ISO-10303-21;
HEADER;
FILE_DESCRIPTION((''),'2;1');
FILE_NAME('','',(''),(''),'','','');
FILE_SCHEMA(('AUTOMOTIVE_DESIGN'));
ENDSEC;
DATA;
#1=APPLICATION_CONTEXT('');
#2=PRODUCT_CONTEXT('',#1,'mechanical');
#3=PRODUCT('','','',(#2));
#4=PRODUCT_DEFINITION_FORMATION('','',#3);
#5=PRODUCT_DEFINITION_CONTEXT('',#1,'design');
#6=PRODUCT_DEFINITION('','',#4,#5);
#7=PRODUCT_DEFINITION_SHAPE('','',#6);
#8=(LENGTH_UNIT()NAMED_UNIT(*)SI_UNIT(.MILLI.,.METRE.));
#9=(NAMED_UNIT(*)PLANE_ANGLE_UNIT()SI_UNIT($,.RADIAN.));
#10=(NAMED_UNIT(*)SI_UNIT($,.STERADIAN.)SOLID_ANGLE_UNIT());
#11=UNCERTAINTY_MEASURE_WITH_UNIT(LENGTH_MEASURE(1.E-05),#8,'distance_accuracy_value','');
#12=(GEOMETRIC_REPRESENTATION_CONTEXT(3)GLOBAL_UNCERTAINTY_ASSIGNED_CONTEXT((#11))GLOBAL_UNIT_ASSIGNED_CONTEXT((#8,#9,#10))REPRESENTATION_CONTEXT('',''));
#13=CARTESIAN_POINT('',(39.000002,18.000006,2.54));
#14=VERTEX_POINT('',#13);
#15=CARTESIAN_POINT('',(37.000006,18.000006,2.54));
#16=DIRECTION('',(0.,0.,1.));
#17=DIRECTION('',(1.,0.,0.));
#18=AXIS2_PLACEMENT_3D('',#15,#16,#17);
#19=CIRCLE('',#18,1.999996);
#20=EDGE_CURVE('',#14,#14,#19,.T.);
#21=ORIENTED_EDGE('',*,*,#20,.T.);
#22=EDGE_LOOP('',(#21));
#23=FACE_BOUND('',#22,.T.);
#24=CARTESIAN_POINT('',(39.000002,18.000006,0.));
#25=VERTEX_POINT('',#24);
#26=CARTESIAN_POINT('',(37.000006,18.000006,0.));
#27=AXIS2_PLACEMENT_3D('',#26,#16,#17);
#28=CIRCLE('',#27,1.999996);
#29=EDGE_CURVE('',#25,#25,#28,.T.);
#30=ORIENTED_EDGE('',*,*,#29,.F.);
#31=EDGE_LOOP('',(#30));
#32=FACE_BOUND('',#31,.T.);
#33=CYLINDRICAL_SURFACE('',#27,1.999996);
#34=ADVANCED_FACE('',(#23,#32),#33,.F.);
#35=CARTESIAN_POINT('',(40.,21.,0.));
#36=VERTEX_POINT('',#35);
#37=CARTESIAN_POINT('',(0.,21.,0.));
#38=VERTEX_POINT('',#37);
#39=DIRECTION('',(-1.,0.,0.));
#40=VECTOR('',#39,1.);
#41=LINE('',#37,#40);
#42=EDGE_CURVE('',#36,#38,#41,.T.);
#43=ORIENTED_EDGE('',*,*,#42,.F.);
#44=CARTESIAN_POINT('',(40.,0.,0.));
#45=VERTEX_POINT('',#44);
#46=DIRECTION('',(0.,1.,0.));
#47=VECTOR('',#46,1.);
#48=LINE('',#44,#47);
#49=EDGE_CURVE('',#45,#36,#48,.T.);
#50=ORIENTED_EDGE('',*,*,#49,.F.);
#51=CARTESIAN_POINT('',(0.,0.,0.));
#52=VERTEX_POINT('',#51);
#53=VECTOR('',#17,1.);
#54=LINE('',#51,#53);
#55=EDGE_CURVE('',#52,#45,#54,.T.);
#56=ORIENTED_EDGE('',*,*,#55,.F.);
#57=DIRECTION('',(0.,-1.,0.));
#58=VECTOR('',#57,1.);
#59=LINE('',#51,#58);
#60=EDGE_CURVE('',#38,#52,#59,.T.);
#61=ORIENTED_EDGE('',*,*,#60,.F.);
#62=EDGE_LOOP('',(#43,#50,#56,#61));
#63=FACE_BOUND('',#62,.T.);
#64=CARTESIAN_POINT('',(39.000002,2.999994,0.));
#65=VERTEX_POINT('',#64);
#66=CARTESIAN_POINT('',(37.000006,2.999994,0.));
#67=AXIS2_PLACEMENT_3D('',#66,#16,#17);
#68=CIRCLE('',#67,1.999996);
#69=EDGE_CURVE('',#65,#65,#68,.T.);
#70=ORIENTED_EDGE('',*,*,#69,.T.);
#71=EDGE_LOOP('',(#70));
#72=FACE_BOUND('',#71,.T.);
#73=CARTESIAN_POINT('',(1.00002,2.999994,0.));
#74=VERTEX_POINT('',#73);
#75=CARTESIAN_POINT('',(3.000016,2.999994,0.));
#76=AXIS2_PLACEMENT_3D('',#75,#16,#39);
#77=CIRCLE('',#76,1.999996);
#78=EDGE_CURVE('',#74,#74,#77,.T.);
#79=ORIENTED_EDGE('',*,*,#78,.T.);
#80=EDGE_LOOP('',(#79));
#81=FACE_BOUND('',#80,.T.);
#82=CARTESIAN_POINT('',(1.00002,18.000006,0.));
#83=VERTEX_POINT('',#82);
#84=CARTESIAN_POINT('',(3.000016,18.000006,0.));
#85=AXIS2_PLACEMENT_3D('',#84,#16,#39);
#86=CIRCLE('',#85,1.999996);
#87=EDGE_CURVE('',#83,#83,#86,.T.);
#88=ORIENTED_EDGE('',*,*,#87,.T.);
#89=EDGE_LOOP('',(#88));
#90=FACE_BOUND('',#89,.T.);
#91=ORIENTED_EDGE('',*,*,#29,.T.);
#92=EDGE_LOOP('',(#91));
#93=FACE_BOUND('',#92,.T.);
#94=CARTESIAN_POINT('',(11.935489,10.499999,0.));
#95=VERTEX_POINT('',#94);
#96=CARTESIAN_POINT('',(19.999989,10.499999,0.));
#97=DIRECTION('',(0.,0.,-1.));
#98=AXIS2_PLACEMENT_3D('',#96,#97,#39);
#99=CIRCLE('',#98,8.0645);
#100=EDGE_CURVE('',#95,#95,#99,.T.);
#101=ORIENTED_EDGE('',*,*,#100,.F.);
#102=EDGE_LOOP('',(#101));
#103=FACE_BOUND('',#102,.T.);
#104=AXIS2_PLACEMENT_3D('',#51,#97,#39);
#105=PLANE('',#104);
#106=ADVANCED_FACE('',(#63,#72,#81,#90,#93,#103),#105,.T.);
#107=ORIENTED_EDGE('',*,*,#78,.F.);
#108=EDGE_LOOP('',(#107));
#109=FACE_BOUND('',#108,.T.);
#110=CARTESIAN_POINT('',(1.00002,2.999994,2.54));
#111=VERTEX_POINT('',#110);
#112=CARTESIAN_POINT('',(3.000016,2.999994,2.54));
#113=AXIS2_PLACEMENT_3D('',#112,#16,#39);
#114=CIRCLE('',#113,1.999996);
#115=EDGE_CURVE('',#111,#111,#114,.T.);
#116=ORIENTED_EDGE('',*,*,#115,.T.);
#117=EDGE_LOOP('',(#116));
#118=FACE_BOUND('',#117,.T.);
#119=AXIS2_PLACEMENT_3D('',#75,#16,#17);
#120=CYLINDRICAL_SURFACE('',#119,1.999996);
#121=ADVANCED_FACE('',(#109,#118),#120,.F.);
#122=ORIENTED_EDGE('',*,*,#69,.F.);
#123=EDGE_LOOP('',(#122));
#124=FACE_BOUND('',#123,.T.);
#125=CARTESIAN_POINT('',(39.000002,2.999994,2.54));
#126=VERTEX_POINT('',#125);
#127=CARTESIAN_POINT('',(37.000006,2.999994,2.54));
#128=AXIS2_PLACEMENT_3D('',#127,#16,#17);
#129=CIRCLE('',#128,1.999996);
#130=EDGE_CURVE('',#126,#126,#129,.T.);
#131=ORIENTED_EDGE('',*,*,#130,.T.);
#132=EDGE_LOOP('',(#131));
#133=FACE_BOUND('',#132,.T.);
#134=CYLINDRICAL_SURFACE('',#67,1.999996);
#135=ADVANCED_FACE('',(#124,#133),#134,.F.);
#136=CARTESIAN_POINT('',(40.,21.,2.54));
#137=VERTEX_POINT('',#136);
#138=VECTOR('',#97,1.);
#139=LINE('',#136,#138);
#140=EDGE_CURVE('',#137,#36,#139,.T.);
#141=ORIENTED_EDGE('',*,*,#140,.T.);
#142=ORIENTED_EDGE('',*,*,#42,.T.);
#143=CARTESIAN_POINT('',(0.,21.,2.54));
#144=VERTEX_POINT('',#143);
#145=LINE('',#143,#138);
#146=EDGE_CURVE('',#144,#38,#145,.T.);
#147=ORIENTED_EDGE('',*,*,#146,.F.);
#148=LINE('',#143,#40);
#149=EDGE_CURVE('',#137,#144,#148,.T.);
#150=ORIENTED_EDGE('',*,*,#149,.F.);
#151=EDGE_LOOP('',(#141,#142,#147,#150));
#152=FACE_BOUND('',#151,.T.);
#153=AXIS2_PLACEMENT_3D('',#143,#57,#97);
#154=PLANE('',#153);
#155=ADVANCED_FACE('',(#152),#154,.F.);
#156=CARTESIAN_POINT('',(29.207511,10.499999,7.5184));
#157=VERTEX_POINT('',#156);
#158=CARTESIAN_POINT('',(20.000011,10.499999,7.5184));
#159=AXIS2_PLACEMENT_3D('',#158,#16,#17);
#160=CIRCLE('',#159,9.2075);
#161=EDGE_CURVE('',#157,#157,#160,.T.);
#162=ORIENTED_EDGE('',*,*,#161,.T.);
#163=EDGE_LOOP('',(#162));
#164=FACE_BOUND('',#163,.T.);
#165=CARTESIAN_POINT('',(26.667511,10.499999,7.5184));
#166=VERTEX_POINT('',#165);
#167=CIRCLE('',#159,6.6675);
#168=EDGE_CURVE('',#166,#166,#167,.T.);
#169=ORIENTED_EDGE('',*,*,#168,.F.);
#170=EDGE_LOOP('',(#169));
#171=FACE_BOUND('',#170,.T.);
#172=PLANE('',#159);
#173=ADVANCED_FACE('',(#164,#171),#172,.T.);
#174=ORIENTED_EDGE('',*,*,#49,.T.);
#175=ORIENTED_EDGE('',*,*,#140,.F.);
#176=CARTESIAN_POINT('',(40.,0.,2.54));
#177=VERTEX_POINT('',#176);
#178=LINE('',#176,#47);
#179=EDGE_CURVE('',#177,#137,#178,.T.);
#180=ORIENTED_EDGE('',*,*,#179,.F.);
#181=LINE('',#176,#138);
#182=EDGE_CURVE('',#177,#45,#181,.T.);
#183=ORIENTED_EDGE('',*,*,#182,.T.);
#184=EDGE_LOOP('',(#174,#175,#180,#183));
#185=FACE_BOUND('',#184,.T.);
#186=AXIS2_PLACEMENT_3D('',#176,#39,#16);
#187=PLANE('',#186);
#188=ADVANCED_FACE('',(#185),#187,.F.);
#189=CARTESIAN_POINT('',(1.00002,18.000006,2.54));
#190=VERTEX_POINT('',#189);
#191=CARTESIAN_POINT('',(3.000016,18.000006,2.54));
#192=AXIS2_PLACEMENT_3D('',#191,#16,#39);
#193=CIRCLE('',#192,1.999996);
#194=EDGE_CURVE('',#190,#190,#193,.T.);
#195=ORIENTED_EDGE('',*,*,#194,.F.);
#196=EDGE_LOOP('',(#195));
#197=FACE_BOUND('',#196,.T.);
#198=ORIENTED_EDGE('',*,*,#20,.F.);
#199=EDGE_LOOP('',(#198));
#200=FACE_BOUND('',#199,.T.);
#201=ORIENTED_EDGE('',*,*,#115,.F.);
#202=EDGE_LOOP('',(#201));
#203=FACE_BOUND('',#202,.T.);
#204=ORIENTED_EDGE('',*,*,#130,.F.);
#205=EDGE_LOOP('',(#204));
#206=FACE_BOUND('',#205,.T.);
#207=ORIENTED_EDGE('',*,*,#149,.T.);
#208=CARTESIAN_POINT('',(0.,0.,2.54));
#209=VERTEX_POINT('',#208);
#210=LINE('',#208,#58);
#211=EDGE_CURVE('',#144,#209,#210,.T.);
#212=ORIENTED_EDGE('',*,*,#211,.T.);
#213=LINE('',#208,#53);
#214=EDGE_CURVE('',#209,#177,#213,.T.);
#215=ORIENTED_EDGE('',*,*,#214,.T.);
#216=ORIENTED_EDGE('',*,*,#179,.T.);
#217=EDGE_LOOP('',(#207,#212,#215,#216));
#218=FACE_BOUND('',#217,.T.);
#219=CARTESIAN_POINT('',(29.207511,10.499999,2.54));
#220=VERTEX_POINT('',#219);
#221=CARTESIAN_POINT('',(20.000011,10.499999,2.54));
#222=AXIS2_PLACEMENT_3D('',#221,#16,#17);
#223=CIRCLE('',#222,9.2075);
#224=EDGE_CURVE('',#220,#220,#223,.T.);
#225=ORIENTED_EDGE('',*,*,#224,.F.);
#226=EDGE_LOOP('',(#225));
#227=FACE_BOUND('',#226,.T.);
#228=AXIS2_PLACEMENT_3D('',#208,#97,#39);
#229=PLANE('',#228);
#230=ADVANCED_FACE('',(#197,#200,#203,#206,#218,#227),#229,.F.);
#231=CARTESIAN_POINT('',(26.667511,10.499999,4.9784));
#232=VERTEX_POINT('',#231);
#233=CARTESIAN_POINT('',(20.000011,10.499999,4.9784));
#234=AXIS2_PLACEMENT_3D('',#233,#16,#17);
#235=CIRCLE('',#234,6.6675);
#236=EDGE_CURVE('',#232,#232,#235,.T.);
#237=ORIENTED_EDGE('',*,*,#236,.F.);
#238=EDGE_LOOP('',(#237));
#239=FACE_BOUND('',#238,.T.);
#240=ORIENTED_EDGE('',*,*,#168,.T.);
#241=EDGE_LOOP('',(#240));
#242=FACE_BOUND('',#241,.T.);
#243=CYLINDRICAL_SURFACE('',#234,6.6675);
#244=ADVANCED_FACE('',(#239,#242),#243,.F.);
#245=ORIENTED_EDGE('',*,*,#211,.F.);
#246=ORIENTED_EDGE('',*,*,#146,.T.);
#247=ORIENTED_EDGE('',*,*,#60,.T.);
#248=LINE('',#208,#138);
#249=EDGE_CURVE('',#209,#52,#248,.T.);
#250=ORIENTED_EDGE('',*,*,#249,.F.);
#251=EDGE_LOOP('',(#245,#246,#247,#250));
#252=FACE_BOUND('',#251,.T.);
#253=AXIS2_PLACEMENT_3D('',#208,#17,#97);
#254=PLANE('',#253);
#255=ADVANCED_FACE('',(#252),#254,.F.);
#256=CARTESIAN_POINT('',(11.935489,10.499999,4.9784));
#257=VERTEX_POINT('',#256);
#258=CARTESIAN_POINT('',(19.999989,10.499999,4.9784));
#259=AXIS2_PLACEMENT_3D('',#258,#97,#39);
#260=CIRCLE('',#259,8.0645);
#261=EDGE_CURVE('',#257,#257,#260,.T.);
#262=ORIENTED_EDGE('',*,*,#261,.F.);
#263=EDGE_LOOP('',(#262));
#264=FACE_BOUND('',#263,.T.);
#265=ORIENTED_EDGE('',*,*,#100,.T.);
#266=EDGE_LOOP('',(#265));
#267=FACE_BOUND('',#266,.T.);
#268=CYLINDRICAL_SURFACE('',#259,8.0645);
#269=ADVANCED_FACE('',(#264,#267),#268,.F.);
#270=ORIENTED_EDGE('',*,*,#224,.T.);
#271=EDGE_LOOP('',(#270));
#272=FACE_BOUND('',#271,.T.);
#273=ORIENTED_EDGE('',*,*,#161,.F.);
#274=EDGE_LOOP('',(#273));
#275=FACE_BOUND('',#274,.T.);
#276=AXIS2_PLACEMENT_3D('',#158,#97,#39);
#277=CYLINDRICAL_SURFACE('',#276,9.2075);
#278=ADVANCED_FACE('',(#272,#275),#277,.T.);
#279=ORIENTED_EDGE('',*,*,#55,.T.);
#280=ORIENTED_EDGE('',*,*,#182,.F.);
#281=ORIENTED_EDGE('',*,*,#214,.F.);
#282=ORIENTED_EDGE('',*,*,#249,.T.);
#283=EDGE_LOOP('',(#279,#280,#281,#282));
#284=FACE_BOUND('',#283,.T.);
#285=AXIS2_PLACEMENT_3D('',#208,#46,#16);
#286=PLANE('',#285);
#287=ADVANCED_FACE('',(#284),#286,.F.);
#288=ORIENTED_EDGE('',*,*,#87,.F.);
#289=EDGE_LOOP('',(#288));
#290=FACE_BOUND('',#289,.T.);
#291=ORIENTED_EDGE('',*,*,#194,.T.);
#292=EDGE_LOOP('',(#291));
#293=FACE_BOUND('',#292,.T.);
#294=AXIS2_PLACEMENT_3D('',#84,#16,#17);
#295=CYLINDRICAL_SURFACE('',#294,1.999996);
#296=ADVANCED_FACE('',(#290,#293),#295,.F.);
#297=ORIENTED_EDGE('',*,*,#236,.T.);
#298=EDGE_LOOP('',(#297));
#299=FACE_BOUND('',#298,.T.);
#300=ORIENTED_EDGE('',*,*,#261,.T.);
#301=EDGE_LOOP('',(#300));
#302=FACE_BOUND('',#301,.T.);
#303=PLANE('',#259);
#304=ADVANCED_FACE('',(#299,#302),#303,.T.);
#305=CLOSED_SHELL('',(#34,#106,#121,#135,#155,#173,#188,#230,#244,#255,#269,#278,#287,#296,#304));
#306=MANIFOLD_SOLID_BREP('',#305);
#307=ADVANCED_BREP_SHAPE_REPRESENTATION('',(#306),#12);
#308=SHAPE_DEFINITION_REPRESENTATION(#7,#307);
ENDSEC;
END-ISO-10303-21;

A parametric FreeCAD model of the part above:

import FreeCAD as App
import Part
import Sketcher
Q = App.Units.Quantity

doc = App.newDocument("Part")
body = doc.addObject("PartDesign::Body", "Body")

# Sketch on XY plane
sketch1 = body.newObject("Sketcher::SketchObject", "Sketch")
sketch1.AttachmentSupport = (doc.getObject("XY_Plane"), [""])
sketch1.MapMode = "FlatFace"
sketch1.addGeometry([
    Part.LineSegment(App.Vector(0, 21, 0), App.Vector(0, 0, 0)),
    Part.LineSegment(App.Vector(0, 0, 0), App.Vector(40, 0, 0)),
    Part.LineSegment(App.Vector(40, 0, 0), App.Vector(40, 21, 0)),
    Part.LineSegment(App.Vector(40, 21, 0), App.Vector(0, 21, 0)),
], False)
sketch1.addConstraint([
    Sketcher.Constraint("Coincident", 0, 2, 1, 1),
    Sketcher.Constraint("Coincident", 1, 2, 2, 1),
    Sketcher.Constraint("Coincident", 2, 2, 3, 1),
    Sketcher.Constraint("Coincident", 3, 2, 0, 1),
    Sketcher.Constraint("Vertical", 0),
    Sketcher.Constraint("Horizontal", 1),
    Sketcher.Constraint("Vertical", 2),
    Sketcher.Constraint("Horizontal", 3),
    Sketcher.Constraint("Coincident", 0, 2, -1, 1),
    Sketcher.Constraint("DistanceX", 1, 1, 1, 2, Q("40 mm")),
    Sketcher.Constraint("DistanceY", 0, 2, 0, 1, Q("21 mm")),
])
pad1 = body.newObject("PartDesign::Pad", "Pad")
pad1.Profile = sketch1
pad1.Length = Q("0.1 in")

# Sketch on XY plane
sketch2 = body.newObject("Sketcher::SketchObject", "Sketch001")
sketch2.AttachmentSupport = (doc.getObject("XY_Plane"), [""])
sketch2.MapMode = "FlatFace"
sketch2.AttachmentOffset = App.Placement(App.Vector(0, 0, 0.1 * 25.4), App.Rotation())
sketch2.addGeometry(Part.Circle(App.Vector(20, 10, 0), App.Vector(0, 0, 1), 9), False)
sketch2.addConstraint([
    Sketcher.Constraint("Diameter", 0, Q("0.725 in")),
    Sketcher.Constraint("DistanceY", -1, 1, 0, 3, Q("10.499999 mm")),
    Sketcher.Constraint("DistanceX", -1, 1, 0, 3, Q("20.000011 mm")),
])
pad2 = body.newObject("PartDesign::Pad", "Pad001")
pad2.Profile = sketch2
pad2.Length = Q("0.196 in")

# Sketch on XY plane
sketch3 = body.newObject("Sketcher::SketchObject", "Sketch002")
sketch3.AttachmentSupport = (doc.getObject("XY_Plane"), [""])
sketch3.MapMode = "FlatFace"
sketch3.AttachmentOffset = App.Placement(App.Vector(0, 0, 0.296 * 25.4), App.Rotation())
sketch3.addGeometry(Part.Circle(App.Vector(20, 10, 0), App.Vector(0, 0, 1), 7), False)
sketch3.addConstraint([
    Sketcher.Constraint("Diameter", 0, Q("0.525 in")),
    Sketcher.Constraint("DistanceY", -1, 1, 0, 3, Q("10.499999 mm")),
    Sketcher.Constraint("DistanceX", -1, 1, 0, 3, Q("20.000011 mm")),
])
pocket1 = body.newObject("PartDesign::Pocket", "Pocket")
pocket1.Profile = sketch3
pocket1.Length = Q("0.1 in")

# Sketch on XY plane
sketch4 = body.newObject("Sketcher::SketchObject", "Sketch003")
sketch4.AttachmentSupport = (doc.getObject("XY_Plane"), [""])
sketch4.MapMode = "FlatFace"
sketch4.AttachmentOffset = App.Placement(App.Vector(0, 0, 0.1 * 25.4), App.Rotation())
sketch4.addGeometry([
    Part.Circle(App.Vector(37, 18, 0), App.Vector(0, 0, 1), 2),
    Part.Circle(App.Vector(3, 18, 0), App.Vector(0, 0, 1), 2),
], False)
sketch4.addConstraint([
    Sketcher.Constraint("Equal", 0, 1),
    Sketcher.Constraint("Horizontal", 0, 3, 1, 3),
    Sketcher.Constraint("Diameter", 0, Q("3.999992 mm")),
    Sketcher.Constraint("DistanceX", 1, 3, 0, 3, Q("33.99999 mm")),
    Sketcher.Constraint("DistanceX", -1, 1, 0, 3, Q("37.000006 mm")),
    Sketcher.Constraint("DistanceY", -1, 1, 0, 3, Q("18.000006 mm")),
])
pocket2 = body.newObject("PartDesign::Pocket", "Pocket001")
pocket2.Profile = sketch4
pocket2.Type = "ThroughAll"

# Sketch on XY plane
sketch5 = body.newObject("Sketcher::SketchObject", "Sketch004")
sketch5.AttachmentSupport = (doc.getObject("XY_Plane"), [""])
sketch5.MapMode = "FlatFace"
sketch5.AttachmentOffset = App.Placement(App.Vector(0, 0, 0.1 * 25.4), App.Rotation())
sketch5.addGeometry([
    Part.Circle(App.Vector(37, 3, 0), App.Vector(0, 0, 1), 2),
    Part.Circle(App.Vector(3, 3, 0), App.Vector(0, 0, 1), 2),
], False)
sketch5.addConstraint([
    Sketcher.Constraint("Equal", 0, 1),
    Sketcher.Constraint("Horizontal", 0, 3, 1, 3),
    Sketcher.Constraint("Diameter", 0, Q("3.999992 mm")),
    Sketcher.Constraint("DistanceX", 1, 3, 0, 3, Q("33.99999 mm")),
    Sketcher.Constraint("DistanceX", -1, 1, 0, 3, Q("37.000006 mm")),
    Sketcher.Constraint("DistanceY", -1, 1, 0, 3, Q("2.999994 mm")),
])
pocket3 = body.newObject("PartDesign::Pocket", "Pocket002")
pocket3.Profile = sketch5
pocket3.Type = "ThroughAll"

# Sketch on XY plane
sketch6 = body.newObject("Sketcher::SketchObject", "Sketch005")
sketch6.AttachmentSupport = (doc.getObject("XY_Plane"), [""])
sketch6.MapMode = "FlatFace"
sketch6.addGeometry(Part.Circle(App.Vector(20, 10, 0), App.Vector(0, 0, 1), 8), False)
sketch6.addConstraint([
    Sketcher.Constraint("Diameter", 0, Q("0.635 in")),
    Sketcher.Constraint("DistanceY", -1, 1, 0, 3, Q("10.499999 mm")),
    Sketcher.Constraint("DistanceX", -1, 1, 0, 3, Q("19.999989 mm")),
])
pocket4 = body.newObject("PartDesign::Pocket", "Pocket003")
pocket4.Profile = sketch6
pocket4.Length = Q("0.196 in")
pocket4.Reversed = True

doc.recompute()
